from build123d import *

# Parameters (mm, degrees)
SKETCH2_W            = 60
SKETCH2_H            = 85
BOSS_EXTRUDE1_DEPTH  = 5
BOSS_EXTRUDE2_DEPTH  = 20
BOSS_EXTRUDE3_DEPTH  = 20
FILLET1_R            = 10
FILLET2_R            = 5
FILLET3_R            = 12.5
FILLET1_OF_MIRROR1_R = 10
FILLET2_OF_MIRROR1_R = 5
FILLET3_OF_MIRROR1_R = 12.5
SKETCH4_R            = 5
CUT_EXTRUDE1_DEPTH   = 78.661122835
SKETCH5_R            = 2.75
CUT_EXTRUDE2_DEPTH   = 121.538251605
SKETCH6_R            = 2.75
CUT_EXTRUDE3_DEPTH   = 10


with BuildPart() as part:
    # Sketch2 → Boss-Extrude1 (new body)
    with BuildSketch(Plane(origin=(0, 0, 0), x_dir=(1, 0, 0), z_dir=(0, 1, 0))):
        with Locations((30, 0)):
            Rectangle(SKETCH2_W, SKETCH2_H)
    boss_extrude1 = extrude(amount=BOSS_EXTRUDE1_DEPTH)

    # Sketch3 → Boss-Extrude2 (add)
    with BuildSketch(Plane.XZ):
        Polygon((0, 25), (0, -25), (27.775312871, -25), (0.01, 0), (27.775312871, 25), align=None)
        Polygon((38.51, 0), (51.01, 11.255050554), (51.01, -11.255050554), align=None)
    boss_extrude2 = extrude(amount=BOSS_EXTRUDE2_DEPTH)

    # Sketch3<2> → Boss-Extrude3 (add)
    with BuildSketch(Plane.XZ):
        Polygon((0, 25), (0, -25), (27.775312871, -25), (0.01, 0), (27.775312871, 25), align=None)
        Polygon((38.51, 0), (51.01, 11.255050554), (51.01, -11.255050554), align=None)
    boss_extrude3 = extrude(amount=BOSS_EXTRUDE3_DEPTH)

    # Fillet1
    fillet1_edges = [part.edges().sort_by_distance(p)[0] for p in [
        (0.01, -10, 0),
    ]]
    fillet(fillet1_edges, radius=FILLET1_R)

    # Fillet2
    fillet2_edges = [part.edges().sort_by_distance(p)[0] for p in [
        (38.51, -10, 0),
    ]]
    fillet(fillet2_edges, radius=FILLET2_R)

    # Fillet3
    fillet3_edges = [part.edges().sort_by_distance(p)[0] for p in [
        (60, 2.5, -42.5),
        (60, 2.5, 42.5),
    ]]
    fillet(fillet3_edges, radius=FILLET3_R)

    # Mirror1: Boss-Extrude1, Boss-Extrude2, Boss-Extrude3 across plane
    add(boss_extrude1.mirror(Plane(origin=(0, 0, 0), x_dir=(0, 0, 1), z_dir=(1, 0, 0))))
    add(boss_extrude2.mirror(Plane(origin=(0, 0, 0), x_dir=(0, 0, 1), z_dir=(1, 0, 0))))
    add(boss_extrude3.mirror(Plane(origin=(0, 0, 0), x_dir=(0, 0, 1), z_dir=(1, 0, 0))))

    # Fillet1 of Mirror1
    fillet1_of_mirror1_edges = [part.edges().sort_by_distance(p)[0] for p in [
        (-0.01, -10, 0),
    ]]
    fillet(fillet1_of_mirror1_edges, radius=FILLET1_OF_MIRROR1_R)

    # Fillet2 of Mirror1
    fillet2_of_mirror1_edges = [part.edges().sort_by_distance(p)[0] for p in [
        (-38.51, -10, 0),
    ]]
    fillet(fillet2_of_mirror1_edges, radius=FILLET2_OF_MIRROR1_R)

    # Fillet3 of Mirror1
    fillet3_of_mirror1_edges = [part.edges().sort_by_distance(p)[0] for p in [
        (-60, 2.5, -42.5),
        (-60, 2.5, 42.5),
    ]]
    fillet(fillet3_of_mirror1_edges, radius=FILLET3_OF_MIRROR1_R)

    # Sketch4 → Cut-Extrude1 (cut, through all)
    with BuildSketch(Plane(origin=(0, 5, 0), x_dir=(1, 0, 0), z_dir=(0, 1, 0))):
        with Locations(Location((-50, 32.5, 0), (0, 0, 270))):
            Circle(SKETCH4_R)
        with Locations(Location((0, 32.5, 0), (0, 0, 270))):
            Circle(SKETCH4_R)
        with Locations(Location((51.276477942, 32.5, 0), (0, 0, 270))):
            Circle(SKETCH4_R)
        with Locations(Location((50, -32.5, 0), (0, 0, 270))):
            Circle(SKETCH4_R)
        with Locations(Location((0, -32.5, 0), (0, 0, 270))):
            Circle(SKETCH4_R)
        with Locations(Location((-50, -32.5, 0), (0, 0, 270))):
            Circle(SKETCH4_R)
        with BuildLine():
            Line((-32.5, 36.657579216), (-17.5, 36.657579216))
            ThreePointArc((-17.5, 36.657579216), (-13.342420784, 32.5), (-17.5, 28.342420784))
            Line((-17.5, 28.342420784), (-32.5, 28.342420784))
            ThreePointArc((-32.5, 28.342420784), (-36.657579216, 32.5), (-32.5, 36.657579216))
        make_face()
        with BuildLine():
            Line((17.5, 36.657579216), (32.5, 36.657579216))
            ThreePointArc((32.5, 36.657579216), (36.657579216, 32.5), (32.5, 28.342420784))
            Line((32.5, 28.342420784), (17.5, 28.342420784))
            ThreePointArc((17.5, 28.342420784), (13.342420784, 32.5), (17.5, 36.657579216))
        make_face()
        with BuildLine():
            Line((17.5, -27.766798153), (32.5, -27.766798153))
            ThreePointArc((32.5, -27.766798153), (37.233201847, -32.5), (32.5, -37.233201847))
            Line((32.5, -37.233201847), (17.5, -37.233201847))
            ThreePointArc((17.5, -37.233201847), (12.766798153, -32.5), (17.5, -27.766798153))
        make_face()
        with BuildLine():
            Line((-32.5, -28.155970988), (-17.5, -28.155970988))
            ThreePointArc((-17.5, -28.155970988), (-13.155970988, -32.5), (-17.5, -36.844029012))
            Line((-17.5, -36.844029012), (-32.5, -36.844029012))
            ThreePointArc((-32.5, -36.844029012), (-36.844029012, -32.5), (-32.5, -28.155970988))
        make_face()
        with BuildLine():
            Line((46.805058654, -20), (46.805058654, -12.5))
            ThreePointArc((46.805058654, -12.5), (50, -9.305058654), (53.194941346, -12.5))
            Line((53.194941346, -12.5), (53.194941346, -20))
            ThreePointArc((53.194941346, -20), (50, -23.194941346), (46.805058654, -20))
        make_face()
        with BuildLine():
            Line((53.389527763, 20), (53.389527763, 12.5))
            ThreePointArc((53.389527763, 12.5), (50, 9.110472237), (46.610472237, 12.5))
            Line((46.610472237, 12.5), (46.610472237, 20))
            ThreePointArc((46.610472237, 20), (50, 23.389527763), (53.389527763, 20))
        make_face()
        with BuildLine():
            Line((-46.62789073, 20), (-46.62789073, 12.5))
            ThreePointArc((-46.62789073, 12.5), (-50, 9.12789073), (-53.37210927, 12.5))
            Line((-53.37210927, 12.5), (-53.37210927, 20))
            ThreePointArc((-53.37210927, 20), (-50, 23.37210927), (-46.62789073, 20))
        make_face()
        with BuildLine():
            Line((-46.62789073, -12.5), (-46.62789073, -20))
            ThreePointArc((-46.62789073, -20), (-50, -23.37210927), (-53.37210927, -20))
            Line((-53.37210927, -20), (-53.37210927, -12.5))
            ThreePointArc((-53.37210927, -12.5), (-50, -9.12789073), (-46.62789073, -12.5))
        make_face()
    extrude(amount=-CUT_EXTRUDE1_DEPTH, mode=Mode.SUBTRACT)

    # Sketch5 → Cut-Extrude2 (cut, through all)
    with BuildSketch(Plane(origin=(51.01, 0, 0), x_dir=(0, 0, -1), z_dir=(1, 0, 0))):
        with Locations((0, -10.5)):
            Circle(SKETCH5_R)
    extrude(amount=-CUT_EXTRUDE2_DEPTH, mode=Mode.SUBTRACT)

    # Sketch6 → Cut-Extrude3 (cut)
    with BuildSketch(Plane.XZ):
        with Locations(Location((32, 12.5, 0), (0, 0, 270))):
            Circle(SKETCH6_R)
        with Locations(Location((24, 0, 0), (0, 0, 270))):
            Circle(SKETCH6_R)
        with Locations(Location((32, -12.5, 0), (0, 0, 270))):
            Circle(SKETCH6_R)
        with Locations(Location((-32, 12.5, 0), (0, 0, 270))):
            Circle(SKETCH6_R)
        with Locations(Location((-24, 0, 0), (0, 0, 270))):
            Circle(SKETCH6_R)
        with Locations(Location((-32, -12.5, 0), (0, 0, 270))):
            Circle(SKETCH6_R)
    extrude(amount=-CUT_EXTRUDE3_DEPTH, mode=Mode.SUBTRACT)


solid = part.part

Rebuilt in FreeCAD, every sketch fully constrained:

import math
import FreeCAD as App
import Part
import Sketcher
from FreeCAD import Vector
Q = App.Units.Quantity


def edges_at(feature, points):
    """Names of the edges that pass closest to the given points."""
    edges = feature.Shape.Edges
    near = lambda p: min(range(len(edges)), key=lambda i: edges[i].distToShape(Part.Vertex(*p))[0])
    return sorted({f"Edge{near(p) + 1}" for p in points})

doc = App.newDocument("Part")
params = doc.addObject("Spreadsheet::Sheet", "Params")
for row, (alias, value) in enumerate([
    ("sketch1_width", "60 mm"),
    ("sketch1_height", "85 mm"),
    ("pad1_length", "5 mm"),
    ("sketch2_height", "50 mm"),
    ("pad2_length", "20 mm"),
    ("sketch3_height", "50 mm"),
    ("pad3_length", "20 mm"),
    ("fillet_radius", "10 mm"),
    ("fillet2_radius", "5 mm"),
    ("fillet3_radius", "12.5 mm"),
    ("fillet4_radius", "10 mm"),
    ("fillet5_radius", "5 mm"),
    ("fillet6_radius", "12.5 mm"),
    ("sketch4_diameter", "10 mm"),
    ("sketch4_width", "15 mm"),
    ("sketch4_height", "7.5 mm"),
    ("sketch5_diameter", "5.5 mm"),
    ("sketch6_diameter", "5.5 mm"),
    ("pocket3_length", "10 mm"),
], start=1):
    params.set(f"A{row}", alias)
    params.set(f"B{row}", "=" + value)
    params.setAlias(f"B{row}", alias)

body = doc.addObject("PartDesign::Body", "Body")

sketch1 = doc.addObject("Sketcher::SketchObject", "Sketch")
body.addObject(sketch1)
sketch1.AttachmentSupport = (doc.XZ_Plane, [""])
sketch1.MapMode = "FlatFace"
sketch1.addGeometry(Part.LineSegment(Vector(0, -42, 0), Vector(0, 42, 0)), False)
sketch1.addGeometry(Part.LineSegment(Vector(0, 42, 0), Vector(60, 42, 0)), False)
sketch1.addGeometry(Part.LineSegment(Vector(60, 42, 0), Vector(60, -42, 0)), False)
sketch1.addGeometry(Part.LineSegment(Vector(60, -42, 0), Vector(0, -42, 0)), False)
sketch1.addConstraint(Sketcher.Constraint("Coincident", 0, 2, 1, 1))
sketch1.addConstraint(Sketcher.Constraint("Coincident", 1, 2, 2, 1))
sketch1.addConstraint(Sketcher.Constraint("Coincident", 2, 2, 3, 1))
sketch1.addConstraint(Sketcher.Constraint("Coincident", 3, 2, 0, 1))
sketch1.addConstraint(Sketcher.Constraint("Vertical", 0))
sketch1.addConstraint(Sketcher.Constraint("Horizontal", 1))
sketch1.addConstraint(Sketcher.Constraint("Vertical", 2))
sketch1.addConstraint(Sketcher.Constraint("Horizontal", 3))
sketch1.addConstraint(Sketcher.Constraint("Symmetric", 0, 2, 3, 2, -1, 1))
sketch1.addConstraint(Sketcher.Constraint("DistanceX", 1, 1, 1, 2, Q("60 mm")))
sketch1.addConstraint(Sketcher.Constraint("DistanceY", 0, 1, 0, 2, Q("85 mm")))
sketch1.setExpression("Constraints[9]", "Params.sketch1_width")
sketch1.setExpression("Constraints[10]", "Params.sketch1_height")
pad1 = doc.addObject("PartDesign::Pad", "Pad")
body.addObject(pad1)
pad1.Profile = sketch1
pad1.setExpression("Length", "Params.pad1_length")
pad1.Reversed = True

sketch2 = doc.addObject("Sketcher::SketchObject", "Sketch001")
body.addObject(sketch2)
sketch2.AttachmentSupport = (doc.XZ_Plane, [""])
sketch2.MapMode = "FlatFace"
sketch2.addGeometry(Part.LineSegment(Vector(0, 25, 0), Vector(0, -25, 0)), False)
sketch2.addGeometry(Part.LineSegment(Vector(0, -25, 0), Vector(28, -25, 0)), False)
sketch2.addGeometry(Part.LineSegment(Vector(28, -25, 0), Vector(0, 0, 0)), False)
sketch2.addGeometry(Part.LineSegment(Vector(0, 0, 0), Vector(28, 25, 0)), False)
sketch2.addGeometry(Part.LineSegment(Vector(28, 25, 0), Vector(0, 25, 0)), False)
sketch2.addGeometry(Part.LineSegment(Vector(51, 11, 0), Vector(39, 0, 0)), False)
sketch2.addGeometry(Part.LineSegment(Vector(39, 0, 0), Vector(51, -11, 0)), False)
sketch2.addGeometry(Part.LineSegment(Vector(51, -11, 0), Vector(51, 11, 0)), False)
sketch2.addConstraint(Sketcher.Constraint("Coincident", 0, 2, 1, 1))
sketch2.addConstraint(Sketcher.Constraint("Coincident", 1, 2, 2, 1))
sketch2.addConstraint(Sketcher.Constraint("Coincident", 2, 2, 3, 1))
sketch2.addConstraint(Sketcher.Constraint("Coincident", 3, 2, 4, 1))
sketch2.addConstraint(Sketcher.Constraint("Coincident", 4, 2, 0, 1))
sketch2.addConstraint(Sketcher.Constraint("Coincident", 5, 2, 6, 1))
sketch2.addConstraint(Sketcher.Constraint("Coincident", 6, 2, 7, 1))
sketch2.addConstraint(Sketcher.Constraint("Coincident", 7, 2, 5, 1))
sketch2.addConstraint(Sketcher.Constraint("Vertical", 0))
sketch2.addConstraint(Sketcher.Constraint("Horizontal", 1))
sketch2.addConstraint(Sketcher.Constraint("Horizontal", 4))
sketch2.addConstraint(Sketcher.Constraint("Vertical", 7))
sketch2.addConstraint(Sketcher.Constraint("Symmetric", 0, 2, 4, 2, -1, 1))
sketch2.addConstraint(Sketcher.Constraint("PointOnObject", 2, 2, -1))
sketch2.addConstraint(Sketcher.Constraint("PointOnObject", 5, 2, -1))
sketch2.addConstraint(Sketcher.Constraint("Parallel", 3, 5))
sketch2.addConstraint(Sketcher.Constraint("Parallel", 2, 6))
sketch2.addConstraint(Sketcher.Constraint("Vertical", 1, 2, 3, 2))
sketch2.addConstraint(Sketcher.Constraint("DistanceY", 0, 2, 0, 1, Q("50 mm")))
sketch2.addConstraint(Sketcher.Constraint("Angle", 2, Q("138 deg")))
sketch2.addConstraint(Sketcher.Constraint("DistanceX", 2, 2, 6, 2, Q("51 mm")))
sketch2.addConstraint(Sketcher.Constraint("DistanceX", 2, 2, 5, 2, Q("38.5 mm")))
sketch2.addConstraint(Sketcher.Constraint("DistanceX", -1, 1, 2, 2, Q("0.01 mm")))
sketch2.setExpression("Constraints[18]", "Params.sketch2_height")
pad2 = doc.addObject("PartDesign::Pad", "Pad001")
body.addObject(pad2)
pad2.Profile = sketch2
pad2.setExpression("Length", "Params.pad2_length")

sketch3 = doc.addObject("Sketcher::SketchObject", "Sketch002")
body.addObject(sketch3)
sketch3.AttachmentSupport = (doc.XZ_Plane, [""])
sketch3.MapMode = "FlatFace"
sketch3.addGeometry(Part.LineSegment(Vector(0, 25, 0), Vector(0, -25, 0)), False)
sketch3.addGeometry(Part.LineSegment(Vector(0, -25, 0), Vector(28, -25, 0)), False)
sketch3.addGeometry(Part.LineSegment(Vector(28, -25, 0), Vector(0, 0, 0)), False)
sketch3.addGeometry(Part.LineSegment(Vector(0, 0, 0), Vector(28, 25, 0)), False)
sketch3.addGeometry(Part.LineSegment(Vector(28, 25, 0), Vector(0, 25, 0)), False)
sketch3.addGeometry(Part.LineSegment(Vector(51, 11, 0), Vector(39, 0, 0)), False)
sketch3.addGeometry(Part.LineSegment(Vector(39, 0, 0), Vector(51, -11, 0)), False)
sketch3.addGeometry(Part.LineSegment(Vector(51, -11, 0), Vector(51, 11, 0)), False)
sketch3.addConstraint(Sketcher.Constraint("Coincident", 0, 2, 1, 1))
sketch3.addConstraint(Sketcher.Constraint("Coincident", 1, 2, 2, 1))
sketch3.addConstraint(Sketcher.Constraint("Coincident", 2, 2, 3, 1))
sketch3.addConstraint(Sketcher.Constraint("Coincident", 3, 2, 4, 1))
sketch3.addConstraint(Sketcher.Constraint("Coincident", 4, 2, 0, 1))
sketch3.addConstraint(Sketcher.Constraint("Coincident", 5, 2, 6, 1))
sketch3.addConstraint(Sketcher.Constraint("Coincident", 6, 2, 7, 1))
sketch3.addConstraint(Sketcher.Constraint("Coincident", 7, 2, 5, 1))
sketch3.addConstraint(Sketcher.Constraint("Vertical", 0))
sketch3.addConstraint(Sketcher.Constraint("Horizontal", 1))
sketch3.addConstraint(Sketcher.Constraint("Horizontal", 4))
sketch3.addConstraint(Sketcher.Constraint("Vertical", 7))
sketch3.addConstraint(Sketcher.Constraint("Symmetric", 0, 2, 4, 2, -1, 1))
sketch3.addConstraint(Sketcher.Constraint("PointOnObject", 2, 2, -1))
sketch3.addConstraint(Sketcher.Constraint("PointOnObject", 5, 2, -1))
sketch3.addConstraint(Sketcher.Constraint("Parallel", 3, 5))
sketch3.addConstraint(Sketcher.Constraint("Parallel", 2, 6))
sketch3.addConstraint(Sketcher.Constraint("Vertical", 1, 2, 3, 2))
sketch3.addConstraint(Sketcher.Constraint("DistanceY", 0, 2, 0, 1, Q("50 mm")))
sketch3.addConstraint(Sketcher.Constraint("Angle", 2, Q("138 deg")))
sketch3.addConstraint(Sketcher.Constraint("DistanceX", 2, 2, 6, 2, Q("51 mm")))
sketch3.addConstraint(Sketcher.Constraint("DistanceX", 2, 2, 5, 2, Q("38.5 mm")))
sketch3.addConstraint(Sketcher.Constraint("DistanceX", -1, 1, 2, 2, Q("0.01 mm")))
sketch3.setExpression("Constraints[18]", "Params.sketch3_height")
pad3 = doc.addObject("PartDesign::Pad", "Pad002")
body.addObject(pad3)
pad3.Profile = sketch3
pad3.setExpression("Length", "Params.pad3_length")
doc.recompute()

fillet = doc.addObject("PartDesign::Fillet", "Fillet")
body.addObject(fillet)
fillet.Base = (pad3, edges_at(pad3, [(0.01, -10, 0)]))
fillet.setExpression("Radius", "Params.fillet_radius")
doc.recompute()

fillet2 = doc.addObject("PartDesign::Fillet", "Fillet001")
body.addObject(fillet2)
fillet2.Base = (fillet, edges_at(fillet, [(38.51, -10, 0)]))
fillet2.setExpression("Radius", "Params.fillet2_radius")
doc.recompute()

fillet3 = doc.addObject("PartDesign::Fillet", "Fillet002")
body.addObject(fillet3)
fillet3.Base = (fillet2, edges_at(fillet2, [(60, 2.5, -42.5), (60, 2.5, 42.5)]))
fillet3.setExpression("Radius", "Params.fillet3_radius")
doc.recompute()

mirrored = doc.addObject("PartDesign::Mirrored", "Mirrored")
body.addObject(mirrored)
mirrored.Originals = [pad1, pad2, pad3]
mirrored.MirrorPlane = (doc.YZ_Plane, [""])
body.Tip = mirrored
doc.recompute()

fillet4 = doc.addObject("PartDesign::Fillet", "Fillet003")
body.addObject(fillet4)
fillet4.Base = (mirrored, edges_at(mirrored, [(-0.01, -10, 0)]))
fillet4.setExpression("Radius", "Params.fillet4_radius")
doc.recompute()

fillet5 = doc.addObject("PartDesign::Fillet", "Fillet004")
body.addObject(fillet5)
fillet5.Base = (fillet4, edges_at(fillet4, [(-38.51, -10, 0)]))
fillet5.setExpression("Radius", "Params.fillet5_radius")
doc.recompute()

fillet6 = doc.addObject("PartDesign::Fillet", "Fillet005")
body.addObject(fillet6)
fillet6.Base = (fillet5, edges_at(fillet5, [(-60, 2.5, -42.5), (-60, 2.5, 42.5)]))
fillet6.setExpression("Radius", "Params.fillet6_radius")

sketch4 = doc.addObject("Sketcher::SketchObject", "Sketch003")
body.addObject(sketch4)
sketch4.AttachmentSupport = (doc.XZ_Plane, [""])
sketch4.MapMode = "FlatFace"
sketch4.AttachmentOffset = App.Placement(Vector(0, 0, -5), App.Rotation())
sketch4.addGeometry(Part.Circle(Vector(-50, -32.5, 0), Vector(0, 0, 1), 5), False)
sketch4.addGeometry(Part.Circle(Vector(0, -32.5, 0), Vector(0, 0, 1), 5), False)
sketch4.addGeometry(Part.Circle(Vector(51.3, -32.5, 0), Vector(0, 0, 1), 5), False)
sketch4.addGeometry(Part.Circle(Vector(50, 32.5, 0), Vector(0, 0, 1), 5), False)
sketch4.addGeometry(Part.Circle(Vector(0, 32.5, 0), Vector(0, 0, 1), 5), False)
sketch4.addGeometry(Part.Circle(Vector(-50, 32.5, 0), Vector(0, 0, 1), 5), False)
sketch4.addGeometry(Part.LineSegment(Vector(-17.5, -36.7, 0), Vector(-32.5, -36.7, 0)), False)
sketch4.addGeometry(Part.ArcOfCircle(Part.Circle(Vector(-32.5, -32.5, 0), Vector(0, 0, 1), 4.2), math.radians(90), math.radians(270)), False)
sketch4.addGeometry(Part.LineSegment(Vector(-32.5, -28.3, 0), Vector(-17.5, -28.3, 0)), False)
sketch4.addGeometry(Part.ArcOfCircle(Part.Circle(Vector(-17.5, -32.5, 0), Vector(0, 0, 1), 4.2), math.radians(-90), math.radians(90)), False)
sketch4.addGeometry(Part.LineSegment(Vector(32.5, -36.7, 0), Vector(17.5, -36.7, 0)), False)
sketch4.addGeometry(Part.ArcOfCircle(Part.Circle(Vector(17.5, -32.5, 0), Vector(0, 0, 1), 4.2), math.radians(90), math.radians(270)), False)
sketch4.addGeometry(Part.LineSegment(Vector(17.5, -28.3, 0), Vector(32.5, -28.3, 0)), False)
sketch4.addGeometry(Part.ArcOfCircle(Part.Circle(Vector(32.5, -32.5, 0), Vector(0, 0, 1), 4.2), math.radians(-90), math.radians(90)), False)
sketch4.addGeometry(Part.LineSegment(Vector(32.5, 27.8, 0), Vector(17.5, 27.8, 0)), False)
sketch4.addGeometry(Part.ArcOfCircle(Part.Circle(Vector(17.5, 32.5, 0), Vector(0, 0, 1), 4.7), math.radians(90), math.radians(270)), False)
sketch4.addGeometry(Part.LineSegment(Vector(17.5, 37.2, 0), Vector(32.5, 37.2, 0)), False)
sketch4.addGeometry(Part.ArcOfCircle(Part.Circle(Vector(32.5, 32.5, 0), Vector(0, 0, 1), 4.7), math.radians(-90), math.radians(90)), False)
sketch4.addGeometry(Part.LineSegment(Vector(-17.5, 28.2, 0), Vector(-32.5, 28.2, 0)), False)
sketch4.addGeometry(Part.ArcOfCircle(Part.Circle(Vector(-32.5, 32.5, 0), Vector(0, 0, 1), 4.3), math.radians(90), math.radians(270)), False)
sketch4.addGeometry(Part.LineSegment(Vector(-32.5, 36.8, 0), Vector(-17.5, 36.8, 0)), False)
sketch4.addGeometry(Part.ArcOfCircle(Part.Circle(Vector(-17.5, 32.5, 0), Vector(0, 0, 1), 4.3), math.radians(-90), math.radians(90)), False)
sketch4.addGeometry(Part.LineSegment(Vector(46.8, 12.5, 0), Vector(46.8, 20, 0)), False)
sketch4.addGeometry(Part.ArcOfCircle(Part.Circle(Vector(50, 20, 0), Vector(0, 0, 1), 3.2), math.radians(0), math.radians(180)), False)
sketch4.addGeometry(Part.LineSegment(Vector(53.2, 20, 0), Vector(53.2, 12.5, 0)), False)
sketch4.addGeometry(Part.ArcOfCircle(Part.Circle(Vector(50, 12.5, 0), Vector(0, 0, 1), 3.2), math.radians(180), math.radians(360)), False)
sketch4.addGeometry(Part.LineSegment(Vector(53.4, -12.5, 0), Vector(53.4, -20, 0)), False)
sketch4.addGeometry(Part.ArcOfCircle(Part.Circle(Vector(50, -20, 0), Vector(0, 0, 1), 3.4), math.radians(180), math.radians(360)), False)
sketch4.addGeometry(Part.LineSegment(Vector(46.6, -20, 0), Vector(46.6, -12.5, 0)), False)
sketch4.addGeometry(Part.ArcOfCircle(Part.Circle(Vector(50, -12.5, 0), Vector(0, 0, 1), 3.4), math.radians(0), math.radians(180)), False)
sketch4.addGeometry(Part.LineSegment(Vector(-46.6, -12.5, 0), Vector(-46.6, -20, 0)), False)
sketch4.addGeometry(Part.ArcOfCircle(Part.Circle(Vector(-50, -20, 0), Vector(0, 0, 1), 3.4), math.radians(180), math.radians(360)), False)
sketch4.addGeometry(Part.LineSegment(Vector(-53.4, -20, 0), Vector(-53.4, -12.5, 0)), False)
sketch4.addGeometry(Part.ArcOfCircle(Part.Circle(Vector(-50, -12.5, 0), Vector(0, 0, 1), 3.4), math.radians(0), math.radians(180)), False)
sketch4.addGeometry(Part.LineSegment(Vector(-46.6, 20, 0), Vector(-46.6, 12.5, 0)), False)
sketch4.addGeometry(Part.ArcOfCircle(Part.Circle(Vector(-50, 12.5, 0), Vector(0, 0, 1), 3.4), math.radians(180), math.radians(360)), False)
sketch4.addGeometry(Part.LineSegment(Vector(-53.4, 12.5, 0), Vector(-53.4, 20, 0)), False)
sketch4.addGeometry(Part.ArcOfCircle(Part.Circle(Vector(-50, 20, 0), Vector(0, 0, 1), 3.4), math.radians(0), math.radians(180)), False)
sketch4.addConstraint(Sketcher.Constraint("Tangent", 6, 2, 7, 2))
sketch4.addConstraint(Sketcher.Constraint("Tangent", 7, 1, 8, 1))
sketch4.addConstraint(Sketcher.Constraint("Tangent", 8, 2, 9, 2))
sketch4.addConstraint(Sketcher.Constraint("Tangent", 9, 1, 6, 1))
sketch4.addConstraint(Sketcher.Constraint("Tangent", 10, 2, 11, 2))
sketch4.addConstraint(Sketcher.Constraint("Tangent", 11, 1, 12, 1))
sketch4.addConstraint(Sketcher.Constraint("Tangent", 12, 2, 13, 2))
sketch4.addConstraint(Sketcher.Constraint("Tangent", 13, 1, 10, 1))
sketch4.addConstraint(Sketcher.Constraint("Tangent", 14, 2, 15, 2))
sketch4.addConstraint(Sketcher.Constraint("Tangent", 15, 1, 16, 1))
sketch4.addConstraint(Sketcher.Constraint("Tangent", 16, 2, 17, 2))
sketch4.addConstraint(Sketcher.Constraint("Tangent", 17, 1, 14, 1))
sketch4.addConstraint(Sketcher.Constraint("Tangent", 18, 2, 19, 2))
sketch4.addConstraint(Sketcher.Constraint("Tangent", 19, 1, 20, 1))
sketch4.addConstraint(Sketcher.Constraint("Tangent", 20, 2, 21, 2))
sketch4.addConstraint(Sketcher.Constraint("Tangent", 21, 1, 18, 1))
sketch4.addConstraint(Sketcher.Constraint("Tangent", 22, 2, 23, 2))
sketch4.addConstraint(Sketcher.Constraint("Tangent", 23, 1, 24, 1))
sketch4.addConstraint(Sketcher.Constraint("Tangent", 24, 2, 25, 2))
sketch4.addConstraint(Sketcher.Constraint("Tangent", 25, 1, 22, 1))
sketch4.addConstraint(Sketcher.Constraint("Tangent", 26, 2, 27, 2))
sketch4.addConstraint(Sketcher.Constraint("Tangent", 27, 1, 28, 1))
sketch4.addConstraint(Sketcher.Constraint("Tangent", 28, 2, 29, 2))
sketch4.addConstraint(Sketcher.Constraint("Tangent", 29, 1, 26, 1))
sketch4.addConstraint(Sketcher.Constraint("Tangent", 30, 2, 31, 2))
sketch4.addConstraint(Sketcher.Constraint("Tangent", 31, 1, 32, 1))
sketch4.addConstraint(Sketcher.Constraint("Tangent", 32, 2, 33, 2))
sketch4.addConstraint(Sketcher.Constraint("Tangent", 33, 1, 30, 1))
sketch4.addConstraint(Sketcher.Constraint("Tangent", 34, 2, 35, 2))
sketch4.addConstraint(Sketcher.Constraint("Tangent", 35, 1, 36, 1))
sketch4.addConstraint(Sketcher.Constraint("Tangent", 36, 2, 37, 2))
sketch4.addConstraint(Sketcher.Constraint("Tangent", 37, 1, 34, 1))
sketch4.addConstraint(Sketcher.Constraint("Horizontal", 6))
sketch4.addConstraint(Sketcher.Constraint("Horizontal", 8))
sketch4.addConstraint(Sketcher.Constraint("Horizontal", 10))
sketch4.addConstraint(Sketcher.Constraint("Horizontal", 12))
sketch4.addConstraint(Sketcher.Constraint("Horizontal", 14))
sketch4.addConstraint(Sketcher.Constraint("Horizontal", 16))
sketch4.addConstraint(Sketcher.Constraint("Horizontal", 18))
sketch4.addConstraint(Sketcher.Constraint("Horizontal", 20))
sketch4.addConstraint(Sketcher.Constraint("Vertical", 22))
sketch4.addConstraint(Sketcher.Constraint("Vertical", 24))
sketch4.addConstraint(Sketcher.Constraint("Vertical", 26))
sketch4.addConstraint(Sketcher.Constraint("Vertical", 28))
sketch4.addConstraint(Sketcher.Constraint("Vertical", 30))
sketch4.addConstraint(Sketcher.Constraint("Vertical", 32))
sketch4.addConstraint(Sketcher.Constraint("Vertical", 34))
sketch4.addConstraint(Sketcher.Constraint("Vertical", 36))
sketch4.addConstraint(Sketcher.Constraint("Equal", 0, 1))
sketch4.addConstraint(Sketcher.Constraint("Equal", 1, 2))
sketch4.addConstraint(Sketcher.Constraint("Equal", 2, 3))
sketch4.addConstraint(Sketcher.Constraint("Equal", 3, 4))
sketch4.addConstraint(Sketcher.Constraint("Equal", 4, 5))
sketch4.addConstraint(Sketcher.Constraint("Equal", 9, 11))
sketch4.addConstraint(Sketcher.Constraint("Equal", 33, 35))
sketch4.addConstraint(Sketcher.Constraint("Symmetric", 0, 3, 3, 3, -1, 1))
sketch4.addConstraint(Sketcher.Constraint("Symmetric", 1, 3, 4, 3, -1, 1))
sketch4.addConstraint(Sketcher.Constraint("Symmetric", 9, 3, 15, 3, -1, 1))
sketch4.addConstraint(Sketcher.Constraint("Symmetric", 13, 3, 19, 3, -1, 1))
sketch4.addConstraint(Sketcher.Constraint("Symmetric", 23, 3, 31, 3, -1, 1))
sketch4.addConstraint(Sketcher.Constraint("Symmetric", 29, 3, 35, 3, -1, 1))
sketch4.addConstraint(Sketcher.Constraint("Symmetric", 3, 3, 5, 3, -2))
sketch4.addConstraint(Sketcher.Constraint("Symmetric", 9, 3, 11, 3, -2))
sketch4.addConstraint(Sketcher.Constraint("Symmetric", 27, 3, 31, 3, -2))
sketch4.addConstraint(Sketcher.Constraint("PointOnObject", 1, 3, -2))
sketch4.addConstraint(Sketcher.Constraint("Horizontal", 0, 3, 1, 3))
sketch4.addConstraint(Sketcher.Constraint("Horizontal", 1, 3, 2, 3))
sketch4.addConstraint(Sketcher.Constraint("Horizontal", 2, 3, 7, 3))
sketch4.addConstraint(Sketcher.Constraint("Horizontal", 29, 3, 33, 3))
sketch4.addConstraint(Sketcher.Constraint("Horizontal", 25, 3, 35, 3))
sketch4.addConstraint(Sketcher.Constraint("Horizontal", 23, 3, 37, 3))
sketch4.addConstraint(Sketcher.Constraint("Vertical", 13, 3, 17, 3))
sketch4.addConstraint(Sketcher.Constraint("Vertical", 7, 3, 19, 3))
sketch4.addConstraint(Sketcher.Constraint("Vertical", 9, 3, 21, 3))
sketch4.addConstraint(Sketcher.Constraint("Vertical", 3, 3, 23, 3))
sketch4.addConstraint(Sketcher.Constraint("Diameter", 0, Q("10 mm")))
sketch4.addConstraint(Sketcher.Constraint("DistanceX", 6, 2, 6, 1, Q("15 mm")))
sketch4.addConstraint(Sketcher.Constraint("DistanceY", 22, 1, 22, 2, Q("7.5 mm")))
sketch4.addConstraint(Sketcher.Constraint("DistanceX", 0, 3, -1, 1, Q("50 mm")))
sketch4.addConstraint(Sketcher.Constraint("DistanceY", -1, 1, 23, 3, Q("20 mm")))
sketch4.addConstraint(Sketcher.Constraint("DistanceY", 2, 3, 3, 3, Q("65 mm")))
sketch4.addConstraint(Sketcher.Constraint("DistanceX", 9, 3, 11, 3, Q("35 mm")))
sketch4.addConstraint(Sketcher.Constraint("Radius", 15, Q("4.733202 mm")))
sketch4.addConstraint(Sketcher.Constraint("Radius", 7, Q("4.157579 mm")))
sketch4.addConstraint(Sketcher.Constraint("Radius", 19, Q("4.344029 mm")))
sketch4.addConstraint(Sketcher.Constraint("Radius", 23, Q("3.194941 mm")))
sketch4.addConstraint(Sketcher.Constraint("Radius", 31, Q("3.372109 mm")))
sketch4.addConstraint(Sketcher.Constraint("Radius", 27, Q("3.389528 mm")))
sketch4.addConstraint(Sketcher.Constraint("DistanceX", 2, 3, 26, 2, Q("2.11305 mm")))
sketch4.setExpression("Constraints[75]", "Params.sketch4_diameter")
sketch4.setExpression("Constraints[76]", "Params.sketch4_width")
sketch4.setExpression("Constraints[77]", "Params.sketch4_height")
pocket1 = doc.addObject("PartDesign::Pocket", "Pocket")
body.addObject(pocket1)
pocket1.Profile = sketch4
pocket1.Type = "ThroughAll"
pocket1.Reversed = True

sketch5 = doc.addObject("Sketcher::SketchObject", "Sketch004")
body.addObject(sketch5)
sketch5.AttachmentSupport = (doc.YZ_Plane, [""])
sketch5.MapMode = "FlatFace"
sketch5.AttachmentOffset = App.Placement(Vector(0, 0, 51.01), App.Rotation())
sketch5.addGeometry(Part.Circle(Vector(-10.5, 0, 0), Vector(0, 0, 1), 2.8), False)
sketch5.addConstraint(Sketcher.Constraint("PointOnObject", 0, 3, -1))
sketch5.addConstraint(Sketcher.Constraint("Diameter", 0, Q("5.5 mm")))
sketch5.addConstraint(Sketcher.Constraint("DistanceX", 0, 3, -1, 1, Q("10.5 mm")))
sketch5.setExpression("Constraints[1]", "Params.sketch5_diameter")
pocket2 = doc.addObject("PartDesign::Pocket", "Pocket001")
body.addObject(pocket2)
pocket2.Profile = sketch5
pocket2.Type = "ThroughAll"

sketch6 = doc.addObject("Sketcher::SketchObject", "Sketch005")
body.addObject(sketch6)
sketch6.AttachmentSupport = (doc.XZ_Plane, [""])
sketch6.MapMode = "FlatFace"
sketch6.addGeometry(Part.Circle(Vector(32, 12.5, 0), Vector(0, 0, 1), 2.8), False)
sketch6.addGeometry(Part.Circle(Vector(24, 0, 0), Vector(0, 0, 1), 2.8), False)
sketch6.addGeometry(Part.Circle(Vector(32, -12.5, 0), Vector(0, 0, 1), 2.8), False)
sketch6.addGeometry(Part.Circle(Vector(-32, 12.5, 0), Vector(0, 0, 1), 2.8), False)
sketch6.addGeometry(Part.Circle(Vector(-24, 0, 0), Vector(0, 0, 1), 2.8), False)
sketch6.addGeometry(Part.Circle(Vector(-32, -12.5, 0), Vector(0, 0, 1), 2.8), False)
sketch6.addConstraint(Sketcher.Constraint("Equal", 0, 1))
sketch6.addConstraint(Sketcher.Constraint("Equal", 1, 2))
sketch6.addConstraint(Sketcher.Constraint("Equal", 2, 3))
sketch6.addConstraint(Sketcher.Constraint("Equal", 3, 4))
sketch6.addConstraint(Sketcher.Constraint("Equal", 4, 5))
sketch6.addConstraint(Sketcher.Constraint("Symmetric", 2, 3, 3, 3, -1, 1))
sketch6.addConstraint(Sketcher.Constraint("Symmetric", 1, 3, 4, 3, -1, 1))
sketch6.addConstraint(Sketcher.Constraint("Symmetric", 0, 3, 5, 3, -1, 1))
sketch6.addConstraint(Sketcher.Constraint("Symmetric", 0, 3, 3, 3, -2))
sketch6.addConstraint(Sketcher.Constraint("PointOnObject", 1, 3, -1))
sketch6.addConstraint(Sketcher.Constraint("Diameter", 0, Q("5.5 mm")))
sketch6.addConstraint(Sketcher.Constraint("DistanceX", -1, 1, 0, 3, Q("32 mm")))
sketch6.addConstraint(Sketcher.Constraint("DistanceX", -1, 1, 1, 3, Q("24 mm")))
sketch6.addConstraint(Sketcher.Constraint("DistanceY", 2, 3, 0, 3, Q("25 mm")))
sketch6.setExpression("Constraints[10]", "Params.sketch6_diameter")
pocket3 = doc.addObject("PartDesign::Pocket", "Pocket002")
body.addObject(pocket3)
pocket3.Profile = sketch6
pocket3.setExpression("Length", "Params.pocket3_length")

doc.recompute()
